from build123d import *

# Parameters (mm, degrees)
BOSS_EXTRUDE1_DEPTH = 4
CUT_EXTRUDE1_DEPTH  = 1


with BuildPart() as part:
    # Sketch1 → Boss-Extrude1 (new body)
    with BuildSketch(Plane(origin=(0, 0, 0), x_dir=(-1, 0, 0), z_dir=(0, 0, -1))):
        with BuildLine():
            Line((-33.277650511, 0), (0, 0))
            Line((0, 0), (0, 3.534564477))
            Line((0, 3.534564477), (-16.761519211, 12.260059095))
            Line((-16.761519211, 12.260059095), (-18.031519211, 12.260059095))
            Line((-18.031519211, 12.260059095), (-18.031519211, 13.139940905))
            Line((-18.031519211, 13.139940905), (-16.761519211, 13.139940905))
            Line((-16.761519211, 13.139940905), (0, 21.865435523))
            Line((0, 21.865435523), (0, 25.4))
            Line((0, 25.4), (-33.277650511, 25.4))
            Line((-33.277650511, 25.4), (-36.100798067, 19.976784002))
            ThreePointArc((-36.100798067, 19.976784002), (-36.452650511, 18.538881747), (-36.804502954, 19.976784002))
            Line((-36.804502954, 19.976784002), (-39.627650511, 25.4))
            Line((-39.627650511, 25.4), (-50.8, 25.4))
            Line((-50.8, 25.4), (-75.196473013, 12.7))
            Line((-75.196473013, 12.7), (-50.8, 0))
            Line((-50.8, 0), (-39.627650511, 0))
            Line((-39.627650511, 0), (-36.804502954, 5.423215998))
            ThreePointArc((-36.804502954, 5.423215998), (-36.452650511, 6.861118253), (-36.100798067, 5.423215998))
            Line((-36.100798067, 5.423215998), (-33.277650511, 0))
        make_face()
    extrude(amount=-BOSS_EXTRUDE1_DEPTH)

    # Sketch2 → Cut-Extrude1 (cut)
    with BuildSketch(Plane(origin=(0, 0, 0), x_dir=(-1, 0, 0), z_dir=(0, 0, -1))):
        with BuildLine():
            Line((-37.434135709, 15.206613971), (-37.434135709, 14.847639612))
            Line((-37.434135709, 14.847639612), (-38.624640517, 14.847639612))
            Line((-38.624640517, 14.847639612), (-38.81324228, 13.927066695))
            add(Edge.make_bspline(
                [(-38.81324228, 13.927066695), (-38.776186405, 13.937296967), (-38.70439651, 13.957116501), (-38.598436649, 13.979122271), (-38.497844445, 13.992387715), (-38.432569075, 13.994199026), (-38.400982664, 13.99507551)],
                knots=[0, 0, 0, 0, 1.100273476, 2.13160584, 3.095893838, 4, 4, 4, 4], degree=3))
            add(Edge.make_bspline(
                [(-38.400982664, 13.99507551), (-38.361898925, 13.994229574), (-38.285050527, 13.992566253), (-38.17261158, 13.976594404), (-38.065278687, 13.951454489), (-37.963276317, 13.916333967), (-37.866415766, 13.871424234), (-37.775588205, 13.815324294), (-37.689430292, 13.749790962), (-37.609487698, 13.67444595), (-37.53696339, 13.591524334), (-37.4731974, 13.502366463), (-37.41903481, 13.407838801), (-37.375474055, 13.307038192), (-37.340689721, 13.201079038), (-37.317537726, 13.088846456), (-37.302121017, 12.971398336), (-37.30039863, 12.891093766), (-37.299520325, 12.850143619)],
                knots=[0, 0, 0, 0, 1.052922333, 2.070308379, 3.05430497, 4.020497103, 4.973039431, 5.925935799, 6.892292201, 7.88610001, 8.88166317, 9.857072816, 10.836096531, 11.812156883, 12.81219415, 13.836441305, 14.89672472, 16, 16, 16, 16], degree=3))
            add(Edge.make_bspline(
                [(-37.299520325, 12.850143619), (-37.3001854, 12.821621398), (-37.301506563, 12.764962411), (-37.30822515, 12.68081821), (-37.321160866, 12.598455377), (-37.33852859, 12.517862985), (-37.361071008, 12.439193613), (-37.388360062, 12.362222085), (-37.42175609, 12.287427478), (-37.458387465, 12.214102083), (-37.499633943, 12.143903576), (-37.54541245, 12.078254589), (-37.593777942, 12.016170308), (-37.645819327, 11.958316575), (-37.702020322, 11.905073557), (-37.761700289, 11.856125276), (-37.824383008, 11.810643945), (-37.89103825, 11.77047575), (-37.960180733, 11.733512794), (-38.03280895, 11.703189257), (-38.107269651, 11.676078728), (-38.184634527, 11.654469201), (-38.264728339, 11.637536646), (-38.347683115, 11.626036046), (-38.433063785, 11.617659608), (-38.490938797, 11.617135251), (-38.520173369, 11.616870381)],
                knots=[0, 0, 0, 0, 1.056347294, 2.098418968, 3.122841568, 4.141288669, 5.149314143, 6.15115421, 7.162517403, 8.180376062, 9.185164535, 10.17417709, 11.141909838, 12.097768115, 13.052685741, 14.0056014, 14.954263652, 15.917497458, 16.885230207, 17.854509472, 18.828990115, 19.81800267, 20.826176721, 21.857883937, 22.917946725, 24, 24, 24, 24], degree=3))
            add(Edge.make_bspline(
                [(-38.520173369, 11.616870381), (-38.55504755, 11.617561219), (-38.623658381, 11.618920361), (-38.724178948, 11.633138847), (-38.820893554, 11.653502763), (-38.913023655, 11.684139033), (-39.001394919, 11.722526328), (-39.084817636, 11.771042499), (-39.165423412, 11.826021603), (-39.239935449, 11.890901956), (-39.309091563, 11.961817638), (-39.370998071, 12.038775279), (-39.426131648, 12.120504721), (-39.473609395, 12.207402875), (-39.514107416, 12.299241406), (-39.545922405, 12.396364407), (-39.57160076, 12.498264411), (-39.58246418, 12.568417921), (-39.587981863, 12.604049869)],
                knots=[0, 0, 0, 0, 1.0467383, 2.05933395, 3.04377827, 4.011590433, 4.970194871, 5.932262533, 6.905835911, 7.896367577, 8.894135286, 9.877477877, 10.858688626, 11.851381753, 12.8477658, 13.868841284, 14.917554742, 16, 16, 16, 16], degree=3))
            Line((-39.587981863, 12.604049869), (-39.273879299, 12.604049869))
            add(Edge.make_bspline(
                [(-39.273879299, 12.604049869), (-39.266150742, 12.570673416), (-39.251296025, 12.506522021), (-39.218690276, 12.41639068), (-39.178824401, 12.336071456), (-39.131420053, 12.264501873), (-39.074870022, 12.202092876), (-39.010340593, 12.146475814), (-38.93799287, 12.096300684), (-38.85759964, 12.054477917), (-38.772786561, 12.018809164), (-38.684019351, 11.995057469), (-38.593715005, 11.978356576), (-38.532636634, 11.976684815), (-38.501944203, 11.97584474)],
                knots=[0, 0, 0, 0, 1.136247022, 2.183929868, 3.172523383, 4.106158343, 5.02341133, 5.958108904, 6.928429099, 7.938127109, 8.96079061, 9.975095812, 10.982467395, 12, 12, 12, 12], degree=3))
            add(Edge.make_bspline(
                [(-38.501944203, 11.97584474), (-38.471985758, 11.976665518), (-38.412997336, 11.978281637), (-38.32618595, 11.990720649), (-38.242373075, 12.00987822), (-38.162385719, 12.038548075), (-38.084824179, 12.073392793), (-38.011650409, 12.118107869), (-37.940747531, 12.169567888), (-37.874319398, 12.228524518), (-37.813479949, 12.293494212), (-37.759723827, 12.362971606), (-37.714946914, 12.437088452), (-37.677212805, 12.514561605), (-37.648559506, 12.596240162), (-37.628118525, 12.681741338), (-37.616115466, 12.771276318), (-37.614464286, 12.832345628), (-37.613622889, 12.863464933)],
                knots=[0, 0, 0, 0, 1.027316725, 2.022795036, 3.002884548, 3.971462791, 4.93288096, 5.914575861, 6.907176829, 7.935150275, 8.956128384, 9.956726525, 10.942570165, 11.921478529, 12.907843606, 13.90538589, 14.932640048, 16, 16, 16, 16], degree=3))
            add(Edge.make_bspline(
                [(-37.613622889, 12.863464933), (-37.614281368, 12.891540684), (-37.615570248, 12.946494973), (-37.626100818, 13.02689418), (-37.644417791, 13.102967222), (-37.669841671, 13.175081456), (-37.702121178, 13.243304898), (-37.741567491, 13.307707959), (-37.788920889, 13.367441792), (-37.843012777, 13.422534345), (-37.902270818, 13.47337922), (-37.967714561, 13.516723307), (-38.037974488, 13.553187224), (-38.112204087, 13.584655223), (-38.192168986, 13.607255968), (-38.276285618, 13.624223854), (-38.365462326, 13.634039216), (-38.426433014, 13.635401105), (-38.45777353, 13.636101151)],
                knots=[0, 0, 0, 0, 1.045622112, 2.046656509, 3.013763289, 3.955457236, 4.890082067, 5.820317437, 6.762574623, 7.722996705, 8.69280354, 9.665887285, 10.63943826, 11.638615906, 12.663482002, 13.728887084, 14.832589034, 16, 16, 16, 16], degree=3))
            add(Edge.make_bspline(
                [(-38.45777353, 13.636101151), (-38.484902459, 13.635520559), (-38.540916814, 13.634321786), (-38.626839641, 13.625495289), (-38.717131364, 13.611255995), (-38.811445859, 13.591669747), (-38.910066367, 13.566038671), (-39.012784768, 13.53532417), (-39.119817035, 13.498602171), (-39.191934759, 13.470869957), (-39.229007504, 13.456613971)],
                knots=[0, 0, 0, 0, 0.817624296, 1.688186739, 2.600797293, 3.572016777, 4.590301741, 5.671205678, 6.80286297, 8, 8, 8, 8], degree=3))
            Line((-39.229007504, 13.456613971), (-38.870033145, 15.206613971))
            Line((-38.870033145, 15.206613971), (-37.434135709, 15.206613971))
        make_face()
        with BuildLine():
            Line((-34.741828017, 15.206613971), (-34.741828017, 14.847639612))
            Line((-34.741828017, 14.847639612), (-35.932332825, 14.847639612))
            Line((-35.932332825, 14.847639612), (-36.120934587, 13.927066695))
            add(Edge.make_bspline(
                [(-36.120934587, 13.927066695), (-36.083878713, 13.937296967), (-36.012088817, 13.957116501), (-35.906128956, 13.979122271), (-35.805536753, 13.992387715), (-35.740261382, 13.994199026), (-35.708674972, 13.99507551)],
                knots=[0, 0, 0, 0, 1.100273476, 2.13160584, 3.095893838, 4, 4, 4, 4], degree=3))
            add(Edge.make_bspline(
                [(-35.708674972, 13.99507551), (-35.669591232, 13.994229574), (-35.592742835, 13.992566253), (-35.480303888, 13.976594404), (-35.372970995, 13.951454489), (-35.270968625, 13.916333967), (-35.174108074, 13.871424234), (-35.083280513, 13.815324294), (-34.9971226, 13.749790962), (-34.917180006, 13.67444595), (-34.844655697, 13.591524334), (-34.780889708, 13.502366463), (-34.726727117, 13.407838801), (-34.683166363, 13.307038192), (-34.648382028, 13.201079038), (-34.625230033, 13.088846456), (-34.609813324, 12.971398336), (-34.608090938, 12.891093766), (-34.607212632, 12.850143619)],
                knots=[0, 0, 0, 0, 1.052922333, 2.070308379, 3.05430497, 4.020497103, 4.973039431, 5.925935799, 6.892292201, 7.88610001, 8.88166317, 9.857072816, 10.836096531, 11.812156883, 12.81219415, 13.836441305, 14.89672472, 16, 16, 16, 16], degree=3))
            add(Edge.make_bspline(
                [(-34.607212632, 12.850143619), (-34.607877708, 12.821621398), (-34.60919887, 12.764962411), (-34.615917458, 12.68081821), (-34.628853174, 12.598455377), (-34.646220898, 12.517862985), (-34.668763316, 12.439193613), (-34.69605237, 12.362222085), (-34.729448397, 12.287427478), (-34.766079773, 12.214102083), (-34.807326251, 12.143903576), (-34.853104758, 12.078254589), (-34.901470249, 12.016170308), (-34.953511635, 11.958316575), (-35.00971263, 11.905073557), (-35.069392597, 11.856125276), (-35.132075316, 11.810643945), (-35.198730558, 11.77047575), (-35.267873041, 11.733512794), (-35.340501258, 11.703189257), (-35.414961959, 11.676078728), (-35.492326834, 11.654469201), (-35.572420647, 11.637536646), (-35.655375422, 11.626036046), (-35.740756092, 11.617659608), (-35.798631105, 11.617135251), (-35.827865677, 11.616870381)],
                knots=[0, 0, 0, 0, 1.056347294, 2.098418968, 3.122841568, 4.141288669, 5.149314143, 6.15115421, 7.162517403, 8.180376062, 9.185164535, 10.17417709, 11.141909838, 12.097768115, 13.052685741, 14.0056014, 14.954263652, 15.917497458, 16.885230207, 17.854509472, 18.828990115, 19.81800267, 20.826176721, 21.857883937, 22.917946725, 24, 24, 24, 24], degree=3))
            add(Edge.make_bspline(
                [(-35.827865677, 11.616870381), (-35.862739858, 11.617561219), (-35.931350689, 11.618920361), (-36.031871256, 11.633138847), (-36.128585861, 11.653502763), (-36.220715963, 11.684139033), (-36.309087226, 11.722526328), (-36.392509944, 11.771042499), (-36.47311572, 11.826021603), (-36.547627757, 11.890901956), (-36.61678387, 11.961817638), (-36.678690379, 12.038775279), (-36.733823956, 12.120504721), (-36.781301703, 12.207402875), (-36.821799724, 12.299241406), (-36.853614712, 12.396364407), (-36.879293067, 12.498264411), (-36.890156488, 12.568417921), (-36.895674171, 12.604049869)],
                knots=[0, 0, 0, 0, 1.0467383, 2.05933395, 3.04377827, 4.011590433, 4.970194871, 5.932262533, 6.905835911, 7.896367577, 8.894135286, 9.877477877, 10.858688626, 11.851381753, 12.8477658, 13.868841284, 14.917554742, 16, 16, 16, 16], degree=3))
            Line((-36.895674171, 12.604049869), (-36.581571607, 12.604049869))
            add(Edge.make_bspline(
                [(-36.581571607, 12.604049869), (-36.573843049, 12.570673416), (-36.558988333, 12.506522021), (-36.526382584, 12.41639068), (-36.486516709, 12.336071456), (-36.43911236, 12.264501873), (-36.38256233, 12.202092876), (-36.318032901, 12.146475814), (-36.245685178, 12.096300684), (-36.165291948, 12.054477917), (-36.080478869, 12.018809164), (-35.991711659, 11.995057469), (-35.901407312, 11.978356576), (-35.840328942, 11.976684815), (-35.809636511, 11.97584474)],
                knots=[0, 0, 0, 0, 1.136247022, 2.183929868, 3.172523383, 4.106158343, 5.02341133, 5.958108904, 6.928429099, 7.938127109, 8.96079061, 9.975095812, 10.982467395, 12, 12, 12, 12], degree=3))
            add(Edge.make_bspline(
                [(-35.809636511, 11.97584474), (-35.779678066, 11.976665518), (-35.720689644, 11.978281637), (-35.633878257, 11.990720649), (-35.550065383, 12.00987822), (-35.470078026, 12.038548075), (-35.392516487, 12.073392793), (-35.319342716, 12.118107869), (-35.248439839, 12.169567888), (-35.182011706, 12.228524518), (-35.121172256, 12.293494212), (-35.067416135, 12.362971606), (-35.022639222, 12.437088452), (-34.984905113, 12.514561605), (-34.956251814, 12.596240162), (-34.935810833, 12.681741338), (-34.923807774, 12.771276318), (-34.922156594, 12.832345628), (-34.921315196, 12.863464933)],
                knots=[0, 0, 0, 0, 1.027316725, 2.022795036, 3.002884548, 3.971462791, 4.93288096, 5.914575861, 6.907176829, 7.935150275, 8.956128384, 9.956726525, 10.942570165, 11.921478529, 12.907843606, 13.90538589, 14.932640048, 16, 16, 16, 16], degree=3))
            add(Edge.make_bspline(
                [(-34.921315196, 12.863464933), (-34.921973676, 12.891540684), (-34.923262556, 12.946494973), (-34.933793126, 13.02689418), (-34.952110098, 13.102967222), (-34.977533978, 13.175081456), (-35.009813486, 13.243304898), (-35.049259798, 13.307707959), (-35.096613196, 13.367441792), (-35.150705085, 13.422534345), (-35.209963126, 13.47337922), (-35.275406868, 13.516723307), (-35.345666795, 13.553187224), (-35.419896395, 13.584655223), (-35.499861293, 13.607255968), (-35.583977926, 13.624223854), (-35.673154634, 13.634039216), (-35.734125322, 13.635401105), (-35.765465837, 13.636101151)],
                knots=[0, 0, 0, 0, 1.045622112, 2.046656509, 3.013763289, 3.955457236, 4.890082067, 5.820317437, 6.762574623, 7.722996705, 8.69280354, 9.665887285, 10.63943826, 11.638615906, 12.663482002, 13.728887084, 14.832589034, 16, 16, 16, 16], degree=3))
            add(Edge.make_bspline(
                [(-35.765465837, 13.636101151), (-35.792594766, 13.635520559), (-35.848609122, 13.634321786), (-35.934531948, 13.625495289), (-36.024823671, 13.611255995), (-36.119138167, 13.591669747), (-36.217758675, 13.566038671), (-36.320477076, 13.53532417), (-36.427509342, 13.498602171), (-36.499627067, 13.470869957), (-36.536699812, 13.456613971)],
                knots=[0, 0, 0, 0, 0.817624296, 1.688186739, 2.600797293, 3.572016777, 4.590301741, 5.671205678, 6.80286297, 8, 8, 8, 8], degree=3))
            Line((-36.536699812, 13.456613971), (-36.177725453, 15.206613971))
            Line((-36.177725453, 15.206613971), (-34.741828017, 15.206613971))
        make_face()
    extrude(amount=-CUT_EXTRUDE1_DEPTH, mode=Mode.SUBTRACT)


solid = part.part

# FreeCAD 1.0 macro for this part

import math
import FreeCAD as App
import Part
import Sketcher

V = App.Vector
Q = App.Units.Quantity

doc = App.newDocument("Part")
params = doc.addObject("Spreadsheet::Sheet", "Params")
for row, (alias, value) in enumerate([
    ("sketch1_width", "1.27 mm"),
    ("pad1_length", "4 mm"),
    ("pocket1_length", "1 mm"),
], start=1):
    params.set(f"A{row}", alias)
    params.set(f"B{row}", "=" + value)
    params.setAlias(f"B{row}", alias)

body = doc.addObject("PartDesign::Body", "Body")

# Sketch on XY plane
sketch1 = doc.addObject("Sketcher::SketchObject", "Sketch")
body.addObject(sketch1)
sketch1.AttachmentSupport = (doc.XY_Plane, [""])
sketch1.MapMode = "FlatFace"
sketch1.addGeometry([
    Part.LineSegment(V(33.3, 0, 0), V(0, 0, 0)),  # 0
    Part.LineSegment(V(0, 0, 0), V(0, 3.5, 0)),  # 1
    Part.LineSegment(V(0, 3.5, 0), V(16.8, 12.3, 0)),  # 2
    Part.LineSegment(V(16.8, 12.3, 0), V(18, 12.3, 0)),  # 3
    Part.LineSegment(V(18, 12.3, 0), V(18, 13.1, 0)),  # 4
    Part.LineSegment(V(18, 13.1, 0), V(16.8, 13.1, 0)),  # 5
    Part.LineSegment(V(16.8, 13.1, 0), V(0, 21.9, 0)),  # 6
    Part.LineSegment(V(0, 21.9, 0), V(0, 25.4, 0)),  # 7
    Part.LineSegment(V(0, 25.4, 0), V(33.3, 25.4, 0)),  # 8
    Part.LineSegment(V(33.3, 25.4, 0), V(36.1, 20, 0)),  # 9
    Part.ArcOfCircle(Part.Circle(V(36.5, 19.3, 0), V(0, 0, 1), 0.8), math.radians(117), math.radians(422)),  # 10
    Part.LineSegment(V(36.8, 20, 0), V(39.6, 25.4, 0)),  # 11
    Part.LineSegment(V(39.6, 25.4, 0), V(50.8, 25.4, 0)),  # 12
    Part.LineSegment(V(50.8, 25.4, 0), V(75.2, 12.7, 0)),  # 13
    Part.LineSegment(V(75.2, 12.7, 0), V(50.8, 0, 0)),  # 14
    Part.LineSegment(V(50.8, 0, 0), V(39.6, 0, 0)),  # 15
    Part.LineSegment(V(39.6, 0, 0), V(36.8, 5.4, 0)),  # 16
    Part.ArcOfCircle(Part.Circle(V(36.5, 6.1, 0), V(0, 0, 1), 0.8), math.radians(-62), math.radians(243)),  # 17
    Part.LineSegment(V(36.1, 5.4, 0), V(33.3, 0, 0)),  # 18
], False)
sketch1.addConstraint([
    Sketcher.Constraint("Coincident", 0, 2, 1, 1),
    Sketcher.Constraint("Coincident", 1, 2, 2, 1),
    Sketcher.Constraint("Coincident", 2, 2, 3, 1),
    Sketcher.Constraint("Coincident", 3, 2, 4, 1),
    Sketcher.Constraint("Coincident", 4, 2, 5, 1),
    Sketcher.Constraint("Coincident", 5, 2, 6, 1),
    Sketcher.Constraint("Coincident", 6, 2, 7, 1),
    Sketcher.Constraint("Coincident", 7, 2, 8, 1),
    Sketcher.Constraint("Coincident", 8, 2, 9, 1),
    Sketcher.Constraint("Coincident", 9, 2, 10, 1),
    Sketcher.Constraint("Coincident", 10, 2, 11, 1),
    Sketcher.Constraint("Coincident", 11, 2, 12, 1),
    Sketcher.Constraint("Coincident", 12, 2, 13, 1),
    Sketcher.Constraint("Coincident", 13, 2, 14, 1),
    Sketcher.Constraint("Coincident", 14, 2, 15, 1),
    Sketcher.Constraint("Coincident", 15, 2, 16, 1),
    Sketcher.Constraint("Coincident", 16, 2, 17, 1),
    Sketcher.Constraint("Coincident", 17, 2, 18, 1),
    Sketcher.Constraint("Coincident", 18, 2, 0, 1),
    Sketcher.Constraint("Horizontal", 0),
    Sketcher.Constraint("Vertical", 1),
    Sketcher.Constraint("Horizontal", 3),
    Sketcher.Constraint("Vertical", 4),
    Sketcher.Constraint("Horizontal", 5),
    Sketcher.Constraint("Vertical", 7),
    Sketcher.Constraint("Horizontal", 8),
    Sketcher.Constraint("Horizontal", 12),
    Sketcher.Constraint("Horizontal", 15),
    Sketcher.Constraint("Coincident", 0, 2, -1, 1),
    Sketcher.Constraint("Equal", 10, 17),
    Sketcher.Constraint("PointOnObject", 6, 2, -2),
    Sketcher.Constraint("PointOnObject", 14, 2, -1),
    Sketcher.Constraint("Perpendicular", 2, 9),
    Sketcher.Constraint("Perpendicular", 6, 11),
    Sketcher.Constraint("Perpendicular", 11, 13),
    Sketcher.Constraint("Perpendicular", 9, 14),
    Sketcher.Constraint("Perpendicular", 14, 16),
    Sketcher.Constraint("Perpendicular", 13, 18),
    Sketcher.Constraint("Horizontal", 9, 2, 10, 2),
    Sketcher.Constraint("Horizontal", 8, 2, 11, 2),
    Sketcher.Constraint("Horizontal", 16, 2, 17, 2),
    Sketcher.Constraint("Vertical", 10, 3, 17, 3),
    Sketcher.Constraint("Vertical", 2, 2, 5, 2),
    Sketcher.Constraint("Vertical", 12, 2, 14, 2),
    Sketcher.Constraint("Vertical", 11, 2, 15, 2),
    Sketcher.Constraint("Vertical", 10, 2, 16, 2),
    Sketcher.Constraint("Vertical", 8, 2, 18, 2),
    Sketcher.Constraint("Equal", 1, 7),
    Sketcher.Constraint("Angle", 2, Q("27.5 deg")),
    Sketcher.Constraint("Radius", 10, Q("0.762 mm")),
    Sketcher.Constraint("DistanceX", 3, 1, 3, 2, Q("1.27 mm")),
    Sketcher.Constraint("DistanceY", -1, 1, 7, 2, Q("25.4 mm")),
    Sketcher.Constraint("DistanceX", -1, 1, 12, 2, Q("50.8 mm")),
    Sketcher.Constraint("DistanceX", 8, 2, 11, 2, Q("6.35 mm")),
    Sketcher.Constraint("DistanceX", 0, 2, 0, 1, Q("33.277651 mm")),
    Sketcher.Constraint("DistanceY", 4, 1, 4, 2, Q("0.879882 mm")),
    Sketcher.Constraint("DistanceX", -1, 1, 9, 2, Q("36.100798 mm")),
    Sketcher.Constraint("DistanceY", 1, 1, 1, 2, Q("3.534564 mm")),
])
sketch1.setExpression("Constraints[50]", "Params.sketch1_width")
pad1 = doc.addObject("PartDesign::Pad", "Pad")
body.addObject(pad1)
pad1.Profile = sketch1
pad1.setExpression("Length", "Params.pad1_length")

# Sketch on XY plane
sketch2 = doc.addObject("Sketcher::SketchObject", "Sketch001")
body.addObject(sketch2)
sketch2.AttachmentSupport = (doc.XY_Plane, [""])
sketch2.MapMode = "FlatFace"
sketch2.addGeometry([
    Part.LineSegment(V(37.434136, 14.84764, 0), V(37.434136, 15.206614, 0)),  # 0
    Part.LineSegment(V(37.434136, 15.206614, 0), V(38.870033, 15.206614, 0)),  # 1
    Part.LineSegment(V(38.870033, 15.206614, 0), V(39.229008, 13.456614, 0)),  # 2
    Part.BSplineCurve([V(38.457774, 13.636101, 0), V(38.484902, 13.635521, 0), V(38.540917, 13.634322, 0), V(38.62684, 13.625495, 0), V(38.717131, 13.611256, 0), V(38.811446, 13.59167, 0), V(38.910066, 13.566039, 0), V(39.012785, 13.535324, 0), V(39.119817, 13.498602, 0), V(39.191935, 13.47087, 0), V(39.229008, 13.456614, 0)], [4, 1, 1, 1, 1, 1, 1, 1, 4], [0, 0.817624296, 1.688186739, 2.600797293, 3.572016777, 4.590301741, 5.671205678, 6.80286297, 8], False, 3, [1, 1, 1, 1, 1, 1, 1, 1, 1, 1, 1], False),  # 3
    Part.BSplineCurve([V(37.613623, 12.863465, 0), V(37.614281, 12.891541, 0), V(37.61557, 12.946495, 0), V(37.626101, 13.026894, 0), V(37.644418, 13.102967, 0), V(37.669842, 13.175081, 0), V(37.702121, 13.243305, 0), V(37.741567, 13.307708, 0), V(37.788921, 13.367442, 0), V(37.843013, 13.422534, 0), V(37.902271, 13.473379, 0), V(37.967715, 13.516723, 0), V(38.037974, 13.553187, 0), V(38.112204, 13.584655, 0), V(38.192169, 13.607256, 0), V(38.276286, 13.624224, 0), V(38.365462, 13.634039, 0), V(38.426433, 13.635401, 0), V(38.457774, 13.636101, 0)], [4, 1, 1, 1, 1, 1, 1, 1, 1, 1, 1, 1, 1, 1, 1, 1, 4], [0, 1.045622112, 2.046656509, 3.013763289, 3.955457236, 4.890082067, 5.820317437, 6.762574623, 7.722996705, 8.69280354, 9.665887285, 10.63943826, 11.638615906, 12.663482002, 13.728887084, 14.832589034, 16], False, 3, [1, 1, 1, 1, 1, 1, 1, 1, 1, 1, 1, 1, 1, 1, 1, 1, 1, 1, 1], False),  # 4
    Part.BSplineCurve([V(38.501944, 11.975845, 0), V(38.471986, 11.976666, 0), V(38.412997, 11.978282, 0), V(38.326186, 11.990721, 0), V(38.242373, 12.009878, 0), V(38.162386, 12.038548, 0), V(38.084824, 12.073393, 0), V(38.01165, 12.118108, 0), V(37.940748, 12.169568, 0), V(37.874319, 12.228525, 0), V(37.81348, 12.293494, 0), V(37.759724, 12.362972, 0), V(37.714947, 12.437088, 0), V(37.677213, 12.514562, 0), V(37.64856, 12.59624, 0), V(37.628119, 12.681741, 0), V(37.616115, 12.771276, 0), V(37.614464, 12.832346, 0), V(37.613623, 12.863465, 0)], [4, 1, 1, 1, 1, 1, 1, 1, 1, 1, 1, 1, 1, 1, 1, 1, 4], [0, 1.027316725, 2.022795036, 3.002884548, 3.971462791, 4.93288096, 5.914575861, 6.907176829, 7.935150275, 8.956128384, 9.956726525, 10.942570165, 11.921478529, 12.907843606, 13.90538589, 14.932640048, 16], False, 3, [1, 1, 1, 1, 1, 1, 1, 1, 1, 1, 1, 1, 1, 1, 1, 1, 1, 1, 1], False),  # 5
    Part.BSplineCurve([V(39.273879, 12.60405, 0), V(39.266151, 12.570673, 0), V(39.251296, 12.506522, 0), V(39.21869, 12.416391, 0), V(39.178824, 12.336071, 0), V(39.13142, 12.264502, 0), V(39.07487, 12.202093, 0), V(39.010341, 12.146476, 0), V(38.937993, 12.096301, 0), V(38.8576, 12.054478, 0), V(38.772787, 12.018809, 0), V(38.684019, 11.995057, 0), V(38.593715, 11.978357, 0), V(38.532637, 11.976685, 0), V(38.501944, 11.975845, 0)], [4, 1, 1, 1, 1, 1, 1, 1, 1, 1, 1, 1, 4], [0, 1.136247022, 2.183929868, 3.172523383, 4.106158343, 5.02341133, 5.958108904, 6.928429099, 7.938127109, 8.96079061, 9.975095812, 10.982467395, 12], False, 3, [1, 1, 1, 1, 1, 1, 1, 1, 1, 1, 1, 1, 1, 1, 1], False),  # 6
    Part.LineSegment(V(39.273879, 12.60405, 0), V(39.587982, 12.60405, 0)),  # 7
    Part.BSplineCurve([V(38.520173, 11.61687, 0), V(38.555048, 11.617561, 0), V(38.623658, 11.61892, 0), V(38.724179, 11.633139, 0), V(38.820894, 11.653503, 0), V(38.913024, 11.684139, 0), V(39.001395, 11.722526, 0), V(39.084818, 11.771042, 0), V(39.165423, 11.826022, 0), V(39.239935, 11.890902, 0), V(39.309092, 11.961818, 0), V(39.370998, 12.038775, 0), V(39.426132, 12.120505, 0), V(39.473609, 12.207403, 0), V(39.514107, 12.299241, 0), V(39.545922, 12.396364, 0), V(39.571601, 12.498264, 0), V(39.582464, 12.568418, 0), V(39.587982, 12.60405, 0)], [4, 1, 1, 1, 1, 1, 1, 1, 1, 1, 1, 1, 1, 1, 1, 1, 4], [0, 1.0467383, 2.05933395, 3.04377827, 4.011590433, 4.970194871, 5.932262533, 6.905835911, 7.896367577, 8.894135286, 9.877477877, 10.858688626, 11.851381753, 12.8477658, 13.868841284, 14.917554742, 16], False, 3, [1, 1, 1, 1, 1, 1, 1, 1, 1, 1, 1, 1, 1, 1, 1, 1, 1, 1, 1], False),  # 8
    Part.BSplineCurve([V(37.29952, 12.850144, 0), V(37.300185, 12.821621, 0), V(37.301507, 12.764962, 0), V(37.308225, 12.680818, 0), V(37.321161, 12.598455, 0), V(37.338529, 12.517863, 0), V(37.361071, 12.439194, 0), V(37.38836, 12.362222, 0), V(37.421756, 12.287427, 0), V(37.458387, 12.214102, 0), V(37.499634, 12.143904, 0), V(37.545412, 12.078255, 0), V(37.593778, 12.01617, 0), V(37.645819, 11.958317, 0), V(37.70202, 11.905074, 0), V(37.7617, 11.856125, 0), V(37.824383, 11.810644, 0), V(37.891038, 11.770476, 0), V(37.960181, 11.733513, 0), V(38.032809, 11.703189, 0), V(38.10727, 11.676079, 0), V(38.184635, 11.654469, 0), V(38.264728, 11.637537, 0), V(38.347683, 11.626036, 0), V(38.433064, 11.61766, 0), V(38.490939, 11.617135, 0), V(38.520173, 11.61687, 0)], [4, 1, 1, 1, 1, 1, 1, 1, 1, 1, 1, 1, 1, 1, 1, 1, 1, 1, 1, 1, 1, 1, 1, 1, 4], [0, 1.056347294, 2.098418968, 3.122841568, 4.141288669, 5.149314143, 6.15115421, 7.162517403, 8.180376062, 9.185164535, 10.17417709, 11.141909838, 12.097768115, 13.052685741, 14.0056014, 14.954263652, 15.917497458, 16.885230207, 17.854509472, 18.828990115, 19.81800267, 20.826176721, 21.857883937, 22.917946725, 24], False, 3, [1, 1, 1, 1, 1, 1, 1, 1, 1, 1, 1, 1, 1, 1, 1, 1, 1, 1, 1, 1, 1, 1, 1, 1, 1, 1, 1], False),  # 9
    Part.BSplineCurve([V(38.400983, 13.995076, 0), V(38.361899, 13.99423, 0), V(38.285051, 13.992566, 0), V(38.172612, 13.976594, 0), V(38.065279, 13.951454, 0), V(37.963276, 13.916334, 0), V(37.866416, 13.871424, 0), V(37.775588, 13.815324, 0), V(37.68943, 13.749791, 0), V(37.609488, 13.674446, 0), V(37.536963, 13.591524, 0), V(37.473197, 13.502366, 0), V(37.419035, 13.407839, 0), V(37.375474, 13.307038, 0), V(37.34069, 13.201079, 0), V(37.317538, 13.088846, 0), V(37.302121, 12.971398, 0), V(37.300399, 12.891094, 0), V(37.29952, 12.850144, 0)], [4, 1, 1, 1, 1, 1, 1, 1, 1, 1, 1, 1, 1, 1, 1, 1, 4], [0, 1.052922333, 2.070308379, 3.05430497, 4.020497103, 4.973039431, 5.925935799, 6.892292201, 7.88610001, 8.88166317, 9.857072816, 10.836096531, 11.812156883, 12.81219415, 13.836441305, 14.89672472, 16], False, 3, [1, 1, 1, 1, 1, 1, 1, 1, 1, 1, 1, 1, 1, 1, 1, 1, 1, 1, 1], False),  # 10
    Part.BSplineCurve([V(38.813242, 13.927067, 0), V(38.776186, 13.937297, 0), V(38.704397, 13.957117, 0), V(38.598437, 13.979122, 0), V(38.497844, 13.992388, 0), V(38.432569, 13.994199, 0), V(38.400983, 13.995076, 0)], [4, 1, 1, 1, 4], [0, 1.100273476, 2.13160584, 3.095893838, 4], False, 3, [1, 1, 1, 1, 1, 1, 1], False),  # 11
    Part.LineSegment(V(38.813242, 13.927067, 0), V(38.624641, 14.84764, 0)),  # 12
    Part.LineSegment(V(38.624641, 14.84764, 0), V(37.434136, 14.84764, 0)),  # 13
    Part.LineSegment(V(34.741828, 14.84764, 0), V(34.741828, 15.206614, 0)),  # 14
    Part.LineSegment(V(34.741828, 15.206614, 0), V(36.177725, 15.206614, 0)),  # 15
    Part.LineSegment(V(36.177725, 15.206614, 0), V(36.5367, 13.456614, 0)),  # 16
    Part.BSplineCurve([V(35.765466, 13.636101, 0), V(35.792595, 13.635521, 0), V(35.848609, 13.634322, 0), V(35.934532, 13.625495, 0), V(36.024824, 13.611256, 0), V(36.119138, 13.59167, 0), V(36.217759, 13.566039, 0), V(36.320477, 13.535324, 0), V(36.427509, 13.498602, 0), V(36.499627, 13.47087, 0), V(36.5367, 13.456614, 0)], [4, 1, 1, 1, 1, 1, 1, 1, 4], [0, 0.817624296, 1.688186739, 2.600797293, 3.572016777, 4.590301741, 5.671205678, 6.80286297, 8], False, 3, [1, 1, 1, 1, 1, 1, 1, 1, 1, 1, 1], False),  # 17
    Part.BSplineCurve([V(34.921315, 12.863465, 0), V(34.921974, 12.891541, 0), V(34.923263, 12.946495, 0), V(34.933793, 13.026894, 0), V(34.95211, 13.102967, 0), V(34.977534, 13.175081, 0), V(35.009813, 13.243305, 0), V(35.04926, 13.307708, 0), V(35.096613, 13.367442, 0), V(35.150705, 13.422534, 0), V(35.209963, 13.473379, 0), V(35.275407, 13.516723, 0), V(35.345667, 13.553187, 0), V(35.419896, 13.584655, 0), V(35.499861, 13.607256, 0), V(35.583978, 13.624224, 0), V(35.673155, 13.634039, 0), V(35.734125, 13.635401, 0), V(35.765466, 13.636101, 0)], [4, 1, 1, 1, 1, 1, 1, 1, 1, 1, 1, 1, 1, 1, 1, 1, 4], [0, 1.045622112, 2.046656509, 3.013763289, 3.955457236, 4.890082067, 5.820317437, 6.762574623, 7.722996705, 8.69280354, 9.665887285, 10.63943826, 11.638615906, 12.663482002, 13.728887084, 14.832589034, 16], False, 3, [1, 1, 1, 1, 1, 1, 1, 1, 1, 1, 1, 1, 1, 1, 1, 1, 1, 1, 1], False),  # 18
    Part.BSplineCurve([V(35.809637, 11.975845, 0), V(35.779678, 11.976666, 0), V(35.72069, 11.978282, 0), V(35.633878, 11.990721, 0), V(35.550065, 12.009878, 0), V(35.470078, 12.038548, 0), V(35.392516, 12.073393, 0), V(35.319343, 12.118108, 0), V(35.24844, 12.169568, 0), V(35.182012, 12.228525, 0), V(35.121172, 12.293494, 0), V(35.067416, 12.362972, 0), V(35.022639, 12.437088, 0), V(34.984905, 12.514562, 0), V(34.956252, 12.59624, 0), V(34.935811, 12.681741, 0), V(34.923808, 12.771276, 0), V(34.922157, 12.832346, 0), V(34.921315, 12.863465, 0)], [4, 1, 1, 1, 1, 1, 1, 1, 1, 1, 1, 1, 1, 1, 1, 1, 4], [0, 1.027316725, 2.022795036, 3.002884548, 3.971462791, 4.93288096, 5.914575861, 6.907176829, 7.935150275, 8.956128384, 9.956726525, 10.942570165, 11.921478529, 12.907843606, 13.90538589, 14.932640048, 16], False, 3, [1, 1, 1, 1, 1, 1, 1, 1, 1, 1, 1, 1, 1, 1, 1, 1, 1, 1, 1], False),  # 19
    Part.BSplineCurve([V(36.581572, 12.60405, 0), V(36.573843, 12.570673, 0), V(36.558988, 12.506522, 0), V(36.526383, 12.416391, 0), V(36.486517, 12.336071, 0), V(36.439112, 12.264502, 0), V(36.382562, 12.202093, 0), V(36.318033, 12.146476, 0), V(36.245685, 12.096301, 0), V(36.165292, 12.054478, 0), V(36.080479, 12.018809, 0), V(35.991712, 11.995057, 0), V(35.901407, 11.978357, 0), V(35.840329, 11.976685, 0), V(35.809637, 11.975845, 0)], [4, 1, 1, 1, 1, 1, 1, 1, 1, 1, 1, 1, 4], [0, 1.136247022, 2.183929868, 3.172523383, 4.106158343, 5.02341133, 5.958108904, 6.928429099, 7.938127109, 8.96079061, 9.975095812, 10.982467395, 12], False, 3, [1, 1, 1, 1, 1, 1, 1, 1, 1, 1, 1, 1, 1, 1, 1], False),  # 20
    Part.LineSegment(V(36.581572, 12.60405, 0), V(36.895674, 12.60405, 0)),  # 21
    Part.BSplineCurve([V(35.827866, 11.61687, 0), V(35.86274, 11.617561, 0), V(35.931351, 11.61892, 0), V(36.031871, 11.633139, 0), V(36.128586, 11.653503, 0), V(36.220716, 11.684139, 0), V(36.309087, 11.722526, 0), V(36.39251, 11.771042, 0), V(36.473116, 11.826022, 0), V(36.547628, 11.890902, 0), V(36.616784, 11.961818, 0), V(36.67869, 12.038775, 0), V(36.733824, 12.120505, 0), V(36.781302, 12.207403, 0), V(36.8218, 12.299241, 0), V(36.853615, 12.396364, 0), V(36.879293, 12.498264, 0), V(36.890156, 12.568418, 0), V(36.895674, 12.60405, 0)], [4, 1, 1, 1, 1, 1, 1, 1, 1, 1, 1, 1, 1, 1, 1, 1, 4], [0, 1.0467383, 2.05933395, 3.04377827, 4.011590433, 4.970194871, 5.932262533, 6.905835911, 7.896367577, 8.894135286, 9.877477877, 10.858688626, 11.851381753, 12.8477658, 13.868841284, 14.917554742, 16], False, 3, [1, 1, 1, 1, 1, 1, 1, 1, 1, 1, 1, 1, 1, 1, 1, 1, 1, 1, 1], False),  # 22
    Part.BSplineCurve([V(34.607213, 12.850144, 0), V(34.607878, 12.821621, 0), V(34.609199, 12.764962, 0), V(34.615917, 12.680818, 0), V(34.628853, 12.598455, 0), V(34.646221, 12.517863, 0), V(34.668763, 12.439194, 0), V(34.696052, 12.362222, 0), V(34.729448, 12.287427, 0), V(34.76608, 12.214102, 0), V(34.807326, 12.143904, 0), V(34.853105, 12.078255, 0), V(34.90147, 12.01617, 0), V(34.953512, 11.958317, 0), V(35.009713, 11.905074, 0), V(35.069393, 11.856125, 0), V(35.132075, 11.810644, 0), V(35.198731, 11.770476, 0), V(35.267873, 11.733513, 0), V(35.340501, 11.703189, 0), V(35.414962, 11.676079, 0), V(35.492327, 11.654469, 0), V(35.572421, 11.637537, 0), V(35.655375, 11.626036, 0), V(35.740756, 11.61766, 0), V(35.798631, 11.617135, 0), V(35.827866, 11.61687, 0)], [4, 1, 1, 1, 1, 1, 1, 1, 1, 1, 1, 1, 1, 1, 1, 1, 1, 1, 1, 1, 1, 1, 1, 1, 4], [0, 1.056347294, 2.098418968, 3.122841568, 4.141288669, 5.149314143, 6.15115421, 7.162517403, 8.180376062, 9.185164535, 10.17417709, 11.141909838, 12.097768115, 13.052685741, 14.0056014, 14.954263652, 15.917497458, 16.885230207, 17.854509472, 18.828990115, 19.81800267, 20.826176721, 21.857883937, 22.917946725, 24], False, 3, [1, 1, 1, 1, 1, 1, 1, 1, 1, 1, 1, 1, 1, 1, 1, 1, 1, 1, 1, 1, 1, 1, 1, 1, 1, 1, 1], False),  # 23
    Part.BSplineCurve([V(35.708675, 13.995076, 0), V(35.669591, 13.99423, 0), V(35.592743, 13.992566, 0), V(35.480304, 13.976594, 0), V(35.372971, 13.951454, 0), V(35.270969, 13.916334, 0), V(35.174108, 13.871424, 0), V(35.083281, 13.815324, 0), V(34.997123, 13.749791, 0), V(34.91718, 13.674446, 0), V(34.844656, 13.591524, 0), V(34.78089, 13.502366, 0), V(34.726727, 13.407839, 0), V(34.683166, 13.307038, 0), V(34.648382, 13.201079, 0), V(34.62523, 13.088846, 0), V(34.609813, 12.971398, 0), V(34.608091, 12.891094, 0), V(34.607213, 12.850144, 0)], [4, 1, 1, 1, 1, 1, 1, 1, 1, 1, 1, 1, 1, 1, 1, 1, 4], [0, 1.052922333, 2.070308379, 3.05430497, 4.020497103, 4.973039431, 5.925935799, 6.892292201, 7.88610001, 8.88166317, 9.857072816, 10.836096531, 11.812156883, 12.81219415, 13.836441305, 14.89672472, 16], False, 3, [1, 1, 1, 1, 1, 1, 1, 1, 1, 1, 1, 1, 1, 1, 1, 1, 1, 1, 1], False),  # 24
    Part.BSplineCurve([V(36.120935, 13.927067, 0), V(36.083879, 13.937297, 0), V(36.012089, 13.957117, 0), V(35.906129, 13.979122, 0), V(35.805537, 13.992388, 0), V(35.740261, 13.994199, 0), V(35.708675, 13.995076, 0)], [4, 1, 1, 1, 4], [0, 1.100273476, 2.13160584, 3.095893838, 4], False, 3, [1, 1, 1, 1, 1, 1, 1], False),  # 25
    Part.LineSegment(V(36.120935, 13.927067, 0), V(35.932333, 14.84764, 0)),  # 26
    Part.LineSegment(V(35.932333, 14.84764, 0), V(34.741828, 14.84764, 0)),  # 27
], False)
sketch2.addConstraint([
    Sketcher.Constraint("Block", 3),
    Sketcher.Constraint("Block", 4),
    Sketcher.Constraint("Block", 5),
    Sketcher.Constraint("Block", 6),
    Sketcher.Constraint("Block", 8),
    Sketcher.Constraint("Block", 9),
    Sketcher.Constraint("Block", 10),
    Sketcher.Constraint("Block", 11),
    Sketcher.Constraint("Block", 17),
    Sketcher.Constraint("Block", 18),
    Sketcher.Constraint("Block", 19),
    Sketcher.Constraint("Block", 20),
    Sketcher.Constraint("Block", 22),
    Sketcher.Constraint("Block", 23),
    Sketcher.Constraint("Block", 24),
    Sketcher.Constraint("Block", 25),
    Sketcher.Constraint("Coincident", 0, 2, 1, 1),
    Sketcher.Constraint("Coincident", 1, 2, 2, 1),
    Sketcher.Constraint("Coincident", 2, 2, 3, 2),
    Sketcher.Constraint("Coincident", 6, 1, 7, 1),
    Sketcher.Constraint("Coincident", 7, 2, 8, 2),
    Sketcher.Constraint("Coincident", 11, 1, 12, 1),
    Sketcher.Constraint("Coincident", 12, 2, 13, 1),
    Sketcher.Constraint("Coincident", 13, 2, 0, 1),
    Sketcher.Constraint("Coincident", 14, 2, 15, 1),
    Sketcher.Constraint("Coincident", 15, 2, 16, 1),
    Sketcher.Constraint("Coincident", 16, 2, 17, 2),
    Sketcher.Constraint("Coincident", 20, 1, 21, 1),
    Sketcher.Constraint("Coincident", 21, 2, 22, 2),
    Sketcher.Constraint("Coincident", 25, 1, 26, 1),
    Sketcher.Constraint("Coincident", 26, 2, 27, 1),
    Sketcher.Constraint("Coincident", 27, 2, 14, 1),
    Sketcher.Constraint("Vertical", 0),
    Sketcher.Constraint("Horizontal", 1),
    Sketcher.Constraint("Horizontal", 13),
    Sketcher.Constraint("Vertical", 14),
    Sketcher.Constraint("Horizontal", 15),
    Sketcher.Constraint("Horizontal", 27),
    Sketcher.Constraint("DistanceY", 2, 2, 1, 2, Q("1.75 mm")),
    Sketcher.Constraint("DistanceY", 2, 2, 14, 2, Q("1.75 mm")),
    Sketcher.Constraint("Distance", 2, Q("1.786439 mm")),
    Sketcher.Constraint("Distance", 16, Q("1.786439 mm")),
    Sketcher.Constraint("DistanceX", 1, 1, 1, 2, Q("1.435897 mm")),
    Sketcher.Constraint("DistanceX", 13, 2, 13, 1, Q("1.190505 mm")),
    Sketcher.Constraint("DistanceX", 15, 1, 15, 2, Q("1.435897 mm")),
    Sketcher.Constraint("DistanceX", 27, 2, 27, 1, Q("1.190505 mm")),
    Sketcher.Constraint("DistanceY", 0, 1, 0, 2, Q("0.358974 mm")),
    Sketcher.Constraint("DistanceY", 14, 1, 14, 2, Q("0.358974 mm")),
])
pocket1 = doc.addObject("PartDesign::Pocket", "Pocket")
body.addObject(pocket1)
pocket1.Profile = sketch2
pocket1.setExpression("Length", "Params.pocket1_length")
pocket1.Reversed = True

doc.recompute()
